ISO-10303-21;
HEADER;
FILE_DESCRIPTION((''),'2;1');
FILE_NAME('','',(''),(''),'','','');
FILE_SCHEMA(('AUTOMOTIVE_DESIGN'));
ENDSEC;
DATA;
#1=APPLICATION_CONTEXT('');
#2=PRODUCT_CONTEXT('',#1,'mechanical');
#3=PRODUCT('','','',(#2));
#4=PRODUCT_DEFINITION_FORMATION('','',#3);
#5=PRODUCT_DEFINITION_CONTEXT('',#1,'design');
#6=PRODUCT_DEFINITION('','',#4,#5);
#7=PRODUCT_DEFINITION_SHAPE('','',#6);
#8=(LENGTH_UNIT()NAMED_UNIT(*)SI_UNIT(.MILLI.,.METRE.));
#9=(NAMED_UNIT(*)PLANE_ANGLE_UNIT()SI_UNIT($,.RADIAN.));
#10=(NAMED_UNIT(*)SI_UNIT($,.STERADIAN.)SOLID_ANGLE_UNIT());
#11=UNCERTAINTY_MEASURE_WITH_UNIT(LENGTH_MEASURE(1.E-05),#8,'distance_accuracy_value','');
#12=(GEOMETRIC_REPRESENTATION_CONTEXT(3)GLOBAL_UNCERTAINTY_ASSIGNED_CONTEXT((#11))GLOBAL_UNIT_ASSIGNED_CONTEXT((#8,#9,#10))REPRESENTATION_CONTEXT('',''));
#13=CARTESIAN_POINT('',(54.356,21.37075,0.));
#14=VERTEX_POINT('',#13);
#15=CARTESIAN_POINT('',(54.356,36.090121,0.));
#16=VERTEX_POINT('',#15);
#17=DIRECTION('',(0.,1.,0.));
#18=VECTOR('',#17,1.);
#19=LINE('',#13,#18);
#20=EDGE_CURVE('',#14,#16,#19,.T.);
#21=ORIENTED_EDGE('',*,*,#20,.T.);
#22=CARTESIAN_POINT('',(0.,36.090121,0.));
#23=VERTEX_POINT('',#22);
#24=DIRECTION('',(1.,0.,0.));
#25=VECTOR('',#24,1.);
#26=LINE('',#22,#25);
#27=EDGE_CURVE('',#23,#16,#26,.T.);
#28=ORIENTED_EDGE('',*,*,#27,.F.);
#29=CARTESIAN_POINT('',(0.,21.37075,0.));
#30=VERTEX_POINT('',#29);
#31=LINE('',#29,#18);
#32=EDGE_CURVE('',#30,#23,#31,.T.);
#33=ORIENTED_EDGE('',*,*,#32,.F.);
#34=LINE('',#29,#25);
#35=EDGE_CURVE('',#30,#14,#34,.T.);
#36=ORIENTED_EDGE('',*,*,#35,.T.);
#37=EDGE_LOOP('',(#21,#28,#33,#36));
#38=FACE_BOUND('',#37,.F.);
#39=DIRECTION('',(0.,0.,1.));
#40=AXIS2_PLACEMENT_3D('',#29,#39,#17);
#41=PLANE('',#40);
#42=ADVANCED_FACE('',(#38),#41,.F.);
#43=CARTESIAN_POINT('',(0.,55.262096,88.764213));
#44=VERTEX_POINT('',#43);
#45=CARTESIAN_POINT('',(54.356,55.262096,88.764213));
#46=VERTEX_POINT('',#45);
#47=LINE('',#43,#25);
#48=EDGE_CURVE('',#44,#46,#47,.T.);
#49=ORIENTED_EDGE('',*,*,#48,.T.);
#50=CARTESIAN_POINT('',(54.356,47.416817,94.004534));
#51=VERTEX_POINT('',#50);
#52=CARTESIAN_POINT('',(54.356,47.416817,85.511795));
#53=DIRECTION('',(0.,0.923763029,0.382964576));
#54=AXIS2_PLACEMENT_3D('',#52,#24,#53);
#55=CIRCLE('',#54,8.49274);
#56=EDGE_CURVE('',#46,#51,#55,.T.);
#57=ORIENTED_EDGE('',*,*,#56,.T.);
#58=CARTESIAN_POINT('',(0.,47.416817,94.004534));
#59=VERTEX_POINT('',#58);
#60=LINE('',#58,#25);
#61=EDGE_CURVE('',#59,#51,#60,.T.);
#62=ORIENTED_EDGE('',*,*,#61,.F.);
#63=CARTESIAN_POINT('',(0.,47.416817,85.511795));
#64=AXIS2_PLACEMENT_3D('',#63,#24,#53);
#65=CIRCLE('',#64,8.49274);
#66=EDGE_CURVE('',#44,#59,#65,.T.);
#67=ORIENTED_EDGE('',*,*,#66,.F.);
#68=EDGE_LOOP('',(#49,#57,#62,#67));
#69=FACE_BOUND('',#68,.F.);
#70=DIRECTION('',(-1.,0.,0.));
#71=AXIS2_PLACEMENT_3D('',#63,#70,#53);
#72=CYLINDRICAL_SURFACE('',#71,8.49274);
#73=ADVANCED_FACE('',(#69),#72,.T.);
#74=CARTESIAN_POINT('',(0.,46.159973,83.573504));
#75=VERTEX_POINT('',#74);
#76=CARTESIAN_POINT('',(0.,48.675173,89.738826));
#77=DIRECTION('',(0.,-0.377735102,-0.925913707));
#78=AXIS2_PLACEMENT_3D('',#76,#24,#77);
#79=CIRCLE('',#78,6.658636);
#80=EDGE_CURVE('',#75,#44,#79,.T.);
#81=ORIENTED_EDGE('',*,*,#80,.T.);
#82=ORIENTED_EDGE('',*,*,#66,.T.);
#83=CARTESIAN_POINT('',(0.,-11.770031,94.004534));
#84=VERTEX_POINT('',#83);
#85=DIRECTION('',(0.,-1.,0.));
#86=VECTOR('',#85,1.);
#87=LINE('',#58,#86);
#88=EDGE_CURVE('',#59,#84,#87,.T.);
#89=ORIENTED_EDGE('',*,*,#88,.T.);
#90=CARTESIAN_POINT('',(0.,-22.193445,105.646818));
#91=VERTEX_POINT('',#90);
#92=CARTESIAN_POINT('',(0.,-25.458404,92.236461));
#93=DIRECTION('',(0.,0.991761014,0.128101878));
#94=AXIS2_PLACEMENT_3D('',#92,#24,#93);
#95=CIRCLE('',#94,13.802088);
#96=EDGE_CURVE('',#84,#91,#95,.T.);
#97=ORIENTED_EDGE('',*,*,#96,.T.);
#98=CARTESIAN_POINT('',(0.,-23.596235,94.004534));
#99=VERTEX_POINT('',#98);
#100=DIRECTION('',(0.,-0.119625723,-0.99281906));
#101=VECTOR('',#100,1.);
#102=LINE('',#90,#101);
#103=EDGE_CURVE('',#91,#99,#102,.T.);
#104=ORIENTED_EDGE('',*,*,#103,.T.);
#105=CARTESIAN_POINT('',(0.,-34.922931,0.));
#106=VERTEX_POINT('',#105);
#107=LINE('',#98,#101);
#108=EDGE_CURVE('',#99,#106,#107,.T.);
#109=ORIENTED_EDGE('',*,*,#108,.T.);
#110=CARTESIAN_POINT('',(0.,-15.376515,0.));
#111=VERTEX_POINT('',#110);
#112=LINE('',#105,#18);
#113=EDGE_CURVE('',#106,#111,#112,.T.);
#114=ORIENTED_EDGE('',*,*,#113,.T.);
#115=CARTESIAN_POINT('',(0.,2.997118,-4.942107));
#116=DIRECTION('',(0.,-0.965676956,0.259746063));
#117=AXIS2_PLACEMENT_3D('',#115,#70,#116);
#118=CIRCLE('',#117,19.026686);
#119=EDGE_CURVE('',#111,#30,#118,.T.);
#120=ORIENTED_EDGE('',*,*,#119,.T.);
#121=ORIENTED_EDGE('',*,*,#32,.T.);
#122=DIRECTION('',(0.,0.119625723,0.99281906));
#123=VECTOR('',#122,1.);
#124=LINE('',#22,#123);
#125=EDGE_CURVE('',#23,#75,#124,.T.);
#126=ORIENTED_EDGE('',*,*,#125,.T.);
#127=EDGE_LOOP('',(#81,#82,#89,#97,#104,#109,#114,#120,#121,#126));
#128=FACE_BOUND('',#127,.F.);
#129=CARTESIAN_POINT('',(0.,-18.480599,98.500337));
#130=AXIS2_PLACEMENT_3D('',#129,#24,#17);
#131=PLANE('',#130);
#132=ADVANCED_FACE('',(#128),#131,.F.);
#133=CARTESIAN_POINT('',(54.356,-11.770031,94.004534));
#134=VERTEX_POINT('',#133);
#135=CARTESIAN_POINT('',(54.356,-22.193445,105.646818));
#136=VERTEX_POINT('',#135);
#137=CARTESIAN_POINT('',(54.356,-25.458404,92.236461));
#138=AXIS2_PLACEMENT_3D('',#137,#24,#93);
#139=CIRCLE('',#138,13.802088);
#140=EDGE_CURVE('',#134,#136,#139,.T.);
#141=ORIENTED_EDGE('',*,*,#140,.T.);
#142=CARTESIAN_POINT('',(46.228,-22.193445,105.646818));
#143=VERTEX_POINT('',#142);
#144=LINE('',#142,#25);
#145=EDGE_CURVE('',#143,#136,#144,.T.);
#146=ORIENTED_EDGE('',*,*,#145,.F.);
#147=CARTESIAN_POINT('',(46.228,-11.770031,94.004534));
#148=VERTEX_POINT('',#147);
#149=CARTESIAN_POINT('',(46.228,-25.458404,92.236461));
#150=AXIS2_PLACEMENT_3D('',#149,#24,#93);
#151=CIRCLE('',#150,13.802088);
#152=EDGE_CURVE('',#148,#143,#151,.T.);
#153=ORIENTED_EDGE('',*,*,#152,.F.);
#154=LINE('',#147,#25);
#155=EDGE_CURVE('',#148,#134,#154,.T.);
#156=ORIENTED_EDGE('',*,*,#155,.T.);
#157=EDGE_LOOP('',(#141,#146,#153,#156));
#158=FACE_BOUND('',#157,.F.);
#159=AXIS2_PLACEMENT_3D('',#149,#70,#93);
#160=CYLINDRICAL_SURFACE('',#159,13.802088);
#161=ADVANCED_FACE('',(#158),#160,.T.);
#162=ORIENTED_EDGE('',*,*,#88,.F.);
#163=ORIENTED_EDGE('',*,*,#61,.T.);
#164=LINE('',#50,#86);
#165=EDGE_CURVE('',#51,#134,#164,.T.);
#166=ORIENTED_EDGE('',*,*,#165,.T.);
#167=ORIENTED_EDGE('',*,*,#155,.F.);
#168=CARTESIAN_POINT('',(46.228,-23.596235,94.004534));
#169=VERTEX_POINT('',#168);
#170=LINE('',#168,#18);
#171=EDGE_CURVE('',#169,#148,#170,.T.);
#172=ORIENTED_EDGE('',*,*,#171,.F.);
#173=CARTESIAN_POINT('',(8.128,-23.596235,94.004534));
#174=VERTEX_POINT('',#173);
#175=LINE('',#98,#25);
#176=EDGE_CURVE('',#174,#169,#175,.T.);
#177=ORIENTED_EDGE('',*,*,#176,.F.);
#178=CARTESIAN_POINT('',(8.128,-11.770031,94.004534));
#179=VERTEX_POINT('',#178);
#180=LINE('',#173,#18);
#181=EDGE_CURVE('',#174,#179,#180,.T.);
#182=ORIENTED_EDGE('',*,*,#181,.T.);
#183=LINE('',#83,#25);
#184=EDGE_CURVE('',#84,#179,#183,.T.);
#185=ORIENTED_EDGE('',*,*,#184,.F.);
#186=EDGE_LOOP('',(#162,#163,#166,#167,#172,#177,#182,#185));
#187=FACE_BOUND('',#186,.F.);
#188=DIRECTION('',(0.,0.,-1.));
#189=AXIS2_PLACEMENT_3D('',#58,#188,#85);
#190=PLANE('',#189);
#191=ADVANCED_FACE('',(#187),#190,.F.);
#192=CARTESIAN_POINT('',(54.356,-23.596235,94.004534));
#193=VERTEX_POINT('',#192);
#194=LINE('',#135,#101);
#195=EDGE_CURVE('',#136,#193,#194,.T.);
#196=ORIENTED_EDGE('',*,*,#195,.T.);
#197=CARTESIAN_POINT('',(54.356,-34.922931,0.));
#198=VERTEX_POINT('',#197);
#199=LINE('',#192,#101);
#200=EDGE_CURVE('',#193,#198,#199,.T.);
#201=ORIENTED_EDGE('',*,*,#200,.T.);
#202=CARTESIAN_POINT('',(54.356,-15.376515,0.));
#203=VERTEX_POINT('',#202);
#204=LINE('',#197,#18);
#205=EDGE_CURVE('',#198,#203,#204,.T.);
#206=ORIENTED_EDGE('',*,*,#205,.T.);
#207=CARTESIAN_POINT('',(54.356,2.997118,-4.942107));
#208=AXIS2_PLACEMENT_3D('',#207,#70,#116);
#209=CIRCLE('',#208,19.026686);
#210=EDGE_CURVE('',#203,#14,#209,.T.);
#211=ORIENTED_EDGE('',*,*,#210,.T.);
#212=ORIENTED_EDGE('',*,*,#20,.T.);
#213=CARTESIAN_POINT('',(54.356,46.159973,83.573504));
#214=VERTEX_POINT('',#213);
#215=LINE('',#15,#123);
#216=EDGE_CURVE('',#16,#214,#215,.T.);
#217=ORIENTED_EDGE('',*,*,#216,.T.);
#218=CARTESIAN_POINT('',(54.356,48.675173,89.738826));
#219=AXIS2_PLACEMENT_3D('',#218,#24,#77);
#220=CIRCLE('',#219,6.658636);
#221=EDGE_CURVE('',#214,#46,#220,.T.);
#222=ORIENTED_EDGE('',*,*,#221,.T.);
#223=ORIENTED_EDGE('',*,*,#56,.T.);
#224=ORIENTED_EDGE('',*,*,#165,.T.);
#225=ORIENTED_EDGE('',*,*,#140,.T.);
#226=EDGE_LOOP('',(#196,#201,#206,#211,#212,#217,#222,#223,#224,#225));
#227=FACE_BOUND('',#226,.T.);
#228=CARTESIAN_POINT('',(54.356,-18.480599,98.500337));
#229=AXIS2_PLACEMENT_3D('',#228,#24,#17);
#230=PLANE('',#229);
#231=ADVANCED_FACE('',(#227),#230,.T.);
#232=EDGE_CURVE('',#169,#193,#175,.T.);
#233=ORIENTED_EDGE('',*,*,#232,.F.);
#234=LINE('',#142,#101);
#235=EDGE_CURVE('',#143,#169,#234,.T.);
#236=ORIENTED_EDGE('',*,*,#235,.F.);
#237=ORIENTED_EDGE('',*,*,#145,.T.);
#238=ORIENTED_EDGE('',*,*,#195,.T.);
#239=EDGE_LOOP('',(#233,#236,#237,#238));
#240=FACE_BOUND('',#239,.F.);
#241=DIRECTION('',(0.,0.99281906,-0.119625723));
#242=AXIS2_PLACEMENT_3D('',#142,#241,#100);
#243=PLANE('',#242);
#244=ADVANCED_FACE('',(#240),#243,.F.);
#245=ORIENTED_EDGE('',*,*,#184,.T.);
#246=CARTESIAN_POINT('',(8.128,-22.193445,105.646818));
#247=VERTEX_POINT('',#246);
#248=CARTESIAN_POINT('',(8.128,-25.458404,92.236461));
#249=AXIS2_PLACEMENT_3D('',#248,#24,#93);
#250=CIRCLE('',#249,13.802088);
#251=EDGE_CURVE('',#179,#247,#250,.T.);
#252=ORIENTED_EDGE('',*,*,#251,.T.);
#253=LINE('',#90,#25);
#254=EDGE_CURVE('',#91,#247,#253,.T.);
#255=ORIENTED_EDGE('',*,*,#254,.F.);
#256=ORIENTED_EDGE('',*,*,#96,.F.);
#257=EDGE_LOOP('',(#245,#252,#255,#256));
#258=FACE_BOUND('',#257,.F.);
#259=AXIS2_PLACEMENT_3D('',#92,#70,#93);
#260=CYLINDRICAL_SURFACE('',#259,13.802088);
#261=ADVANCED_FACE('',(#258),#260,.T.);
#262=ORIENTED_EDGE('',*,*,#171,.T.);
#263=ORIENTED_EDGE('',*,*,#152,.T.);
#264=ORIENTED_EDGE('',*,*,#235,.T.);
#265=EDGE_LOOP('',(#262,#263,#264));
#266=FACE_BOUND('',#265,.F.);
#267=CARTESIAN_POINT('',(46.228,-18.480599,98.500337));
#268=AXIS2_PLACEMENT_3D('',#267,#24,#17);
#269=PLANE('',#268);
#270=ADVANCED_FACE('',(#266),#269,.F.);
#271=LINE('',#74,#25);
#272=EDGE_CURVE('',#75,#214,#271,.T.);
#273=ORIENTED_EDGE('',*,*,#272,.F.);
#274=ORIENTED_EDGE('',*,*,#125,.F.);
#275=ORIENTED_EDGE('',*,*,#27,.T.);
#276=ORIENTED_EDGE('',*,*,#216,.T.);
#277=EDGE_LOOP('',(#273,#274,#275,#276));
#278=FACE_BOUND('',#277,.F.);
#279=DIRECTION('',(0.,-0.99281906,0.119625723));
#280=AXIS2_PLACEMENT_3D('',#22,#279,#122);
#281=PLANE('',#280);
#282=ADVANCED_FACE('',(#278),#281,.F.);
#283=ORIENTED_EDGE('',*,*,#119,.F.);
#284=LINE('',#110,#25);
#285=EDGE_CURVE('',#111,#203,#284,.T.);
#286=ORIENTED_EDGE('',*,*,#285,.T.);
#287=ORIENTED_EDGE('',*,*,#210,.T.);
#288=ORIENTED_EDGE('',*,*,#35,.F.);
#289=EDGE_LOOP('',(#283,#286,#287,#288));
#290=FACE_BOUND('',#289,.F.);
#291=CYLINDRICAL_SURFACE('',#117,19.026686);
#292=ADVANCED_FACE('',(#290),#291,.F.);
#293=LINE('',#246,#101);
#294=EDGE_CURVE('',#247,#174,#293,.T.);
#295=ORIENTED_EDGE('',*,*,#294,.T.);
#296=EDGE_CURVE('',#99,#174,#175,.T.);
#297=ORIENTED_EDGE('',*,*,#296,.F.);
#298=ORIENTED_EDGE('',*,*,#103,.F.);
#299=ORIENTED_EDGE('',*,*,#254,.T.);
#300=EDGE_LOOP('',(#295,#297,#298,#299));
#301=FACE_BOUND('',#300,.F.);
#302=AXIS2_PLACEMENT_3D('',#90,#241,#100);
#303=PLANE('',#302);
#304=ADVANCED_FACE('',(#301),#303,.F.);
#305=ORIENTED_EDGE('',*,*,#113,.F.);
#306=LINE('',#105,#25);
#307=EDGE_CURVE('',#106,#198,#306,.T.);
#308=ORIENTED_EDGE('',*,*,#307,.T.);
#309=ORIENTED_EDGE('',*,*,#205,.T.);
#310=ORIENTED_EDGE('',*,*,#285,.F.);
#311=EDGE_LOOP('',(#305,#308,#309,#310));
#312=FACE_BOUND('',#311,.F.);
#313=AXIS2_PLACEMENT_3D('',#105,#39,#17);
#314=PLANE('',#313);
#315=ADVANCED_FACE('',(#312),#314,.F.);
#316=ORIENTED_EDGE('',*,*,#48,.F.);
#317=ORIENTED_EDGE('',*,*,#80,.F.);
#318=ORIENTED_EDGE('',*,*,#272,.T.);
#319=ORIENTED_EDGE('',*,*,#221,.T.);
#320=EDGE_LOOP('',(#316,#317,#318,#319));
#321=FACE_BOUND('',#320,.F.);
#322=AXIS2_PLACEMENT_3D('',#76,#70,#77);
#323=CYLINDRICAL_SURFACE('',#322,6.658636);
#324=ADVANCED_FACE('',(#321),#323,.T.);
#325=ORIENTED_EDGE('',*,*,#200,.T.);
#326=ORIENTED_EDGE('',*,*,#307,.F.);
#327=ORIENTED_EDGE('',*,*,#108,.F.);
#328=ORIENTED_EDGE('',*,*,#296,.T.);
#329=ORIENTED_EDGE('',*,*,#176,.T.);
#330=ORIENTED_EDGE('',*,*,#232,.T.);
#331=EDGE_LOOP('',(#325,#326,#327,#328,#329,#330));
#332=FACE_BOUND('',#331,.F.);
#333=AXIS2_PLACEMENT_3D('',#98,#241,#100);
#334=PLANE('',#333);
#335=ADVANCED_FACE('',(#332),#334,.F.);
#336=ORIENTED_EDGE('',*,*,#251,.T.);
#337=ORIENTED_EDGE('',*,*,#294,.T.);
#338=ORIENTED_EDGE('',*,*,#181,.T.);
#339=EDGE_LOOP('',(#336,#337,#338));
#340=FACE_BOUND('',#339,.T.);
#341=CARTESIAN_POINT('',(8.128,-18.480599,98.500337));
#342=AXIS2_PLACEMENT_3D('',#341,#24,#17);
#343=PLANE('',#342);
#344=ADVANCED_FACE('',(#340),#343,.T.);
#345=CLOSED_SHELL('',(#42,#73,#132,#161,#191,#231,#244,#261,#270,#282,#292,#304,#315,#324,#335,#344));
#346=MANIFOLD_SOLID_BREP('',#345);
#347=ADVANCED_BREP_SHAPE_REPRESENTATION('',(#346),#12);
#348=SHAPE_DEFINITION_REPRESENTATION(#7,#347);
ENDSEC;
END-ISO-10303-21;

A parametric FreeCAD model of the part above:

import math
import FreeCAD as App
import Part
import Sketcher

V = App.Vector
Q = App.Units.Quantity

doc = App.newDocument("Part")
body = doc.addObject("PartDesign::Body", "Body")

# Sketch on YZ plane
sketch1 = body.newObject("Sketcher::SketchObject", "Sketch")
sketch1.AttachmentSupport = (doc.getObject("YZ_Plane"), [""])
sketch1.MapMode = "FlatFace"
sketch1.addGeometry(Part.ArcOfCircle(Part.Circle(V(3, -5, 0), V(0, 0, 1), 19), math.radians(15), math.radians(165)), False)
sketch1.addGeometry(Part.LineSegment(V(21, 0, 0), V(36, 0, 0)), False)
sketch1.addGeometry(Part.LineSegment(V(36, 0, 0), V(46, 84, 0)), False)
sketch1.addGeometry(Part.ArcOfCircle(Part.Circle(V(49, 90, 0), V(0, 0, 1), 7), math.radians(-112), math.radians(-8)), False)
sketch1.addGeometry(Part.ArcOfCircle(Part.Circle(V(47, 86, 0), V(0, 0, 1), 8), math.radians(23), math.radians(90)), False)
sketch1.addGeometry(Part.LineSegment(V(47, 94, 0), V(-24, 94, 0)), False)
sketch1.addGeometry(Part.LineSegment(V(-24, 94, 0), V(-35, 0, 0)), False)
sketch1.addGeometry(Part.LineSegment(V(-35, 0, 0), V(-15, 0, 0)), False)
sketch1.addConstraint(Sketcher.Constraint("Coincident", 0, 1, 1, 1))
sketch1.addConstraint(Sketcher.Constraint("Coincident", 1, 2, 2, 1))
sketch1.addConstraint(Sketcher.Constraint("Coincident", 2, 2, 3, 1))
sketch1.addConstraint(Sketcher.Constraint("Coincident", 3, 2, 4, 1))
sketch1.addConstraint(Sketcher.Constraint("Tangent", 4, 2, 5, 1))
sketch1.addConstraint(Sketcher.Constraint("Coincident", 5, 2, 6, 1))
sketch1.addConstraint(Sketcher.Constraint("Coincident", 6, 2, 7, 1))
sketch1.addConstraint(Sketcher.Constraint("Coincident", 7, 2, 0, 2))
sketch1.addConstraint(Sketcher.Constraint("Horizontal", 1))
sketch1.addConstraint(Sketcher.Constraint("Horizontal", 5))
sketch1.addConstraint(Sketcher.Constraint("Horizontal", 7))
sketch1.addConstraint(Sketcher.Constraint("PointOnObject", 0, 1, -1))
sketch1.addConstraint(Sketcher.Constraint("PointOnObject", 6, 2, -1))
sketch1.addConstraint(Sketcher.Constraint("Parallel", 2, 6))
sketch1.addConstraint(Sketcher.Constraint("Radius", 4, 8.49274))
sketch1.addConstraint(Sketcher.Constraint("Radius", 0, 19.026686))
sketch1.addConstraint(Sketcher.Constraint("Radius", 3, 6.658636))
sketch1.addConstraint(Sketcher.Constraint("DistanceX", 1, 1, 1, 2, 14.719371))
sketch1.addConstraint(Sketcher.Constraint("DistanceX", 0, 3, 4, 3, 44.4197))
sketch1.addConstraint(Sketcher.Constraint("DistanceY", 0, 3, 4, 3, 90.453901))
sketch1.addConstraint(Sketcher.Constraint("DistanceX", 2, 2, 3, 3, 2.5152))
sketch1.addConstraint(Sketcher.Constraint("Distance", 2, 84.177981))
sketch1.addConstraint(Sketcher.Constraint("DistanceX", 5, 2, 5, 1, 71.013052))
sketch1.addConstraint(Sketcher.Constraint("DistanceX", 7, 1, 7, 2, 19.546417))
sketch1.addConstraint(Sketcher.Constraint("DistanceX", -1, 1, 0, 1, 21.37075))
sketch1.addConstraint(Sketcher.Constraint("DistanceX", 6, 2, -1, 1, 34.922931))
pad1 = body.newObject("PartDesign::Pad", "Pad")
pad1.Profile = sketch1
pad1.Length = Q("2.14 in")

# Sketch on YZ plane
sketch2 = body.newObject("Sketcher::SketchObject", "Sketch001")
sketch2.AttachmentSupport = (doc.getObject("YZ_Plane"), [""])
sketch2.MapMode = "FlatFace"
sketch2.addGeometry(Part.LineSegment(V(-22, 106, 0), V(-24, 94, 0)), False)
sketch2.addGeometry(Part.LineSegment(V(-24, 94, 0), V(-12, 94, 0)), False)
sketch2.addGeometry(Part.ArcOfCircle(Part.Circle(V(-25, 92, 0), V(0, 0, 1), 14), math.radians(7), math.radians(76)), False)
sketch2.addConstraint(Sketcher.Constraint("Coincident", 0, 2, 1, 1))
sketch2.addConstraint(Sketcher.Constraint("Coincident", 1, 2, 2, 1))
sketch2.addConstraint(Sketcher.Constraint("Coincident", 2, 2, 0, 1))
sketch2.addConstraint(Sketcher.Constraint("Horizontal", 1))
sketch2.addConstraint(Sketcher.Constraint("Radius", 2, 13.802088))
sketch2.addConstraint(Sketcher.Constraint("Distance", 0, 11.726491))
sketch2.addConstraint(Sketcher.Constraint("DistanceX", 1, 1, 1, 2, 11.826203))
sketch2.addConstraint(Sketcher.Constraint("DistanceY", -1, 1, 2, 3, 92.236461))
sketch2.addConstraint(Sketcher.Constraint("DistanceX", 1, 2, -1, 1, 11.770031))
sketch2.addConstraint(Sketcher.Constraint("DistanceX", 2, 3, 0, 2, 1.86217))
pad2 = body.newObject("PartDesign::Pad", "Pad001")
pad2.Profile = sketch2
pad2.Length = Q("0.32 in")

# Sketch on YZ plane
sketch3 = body.newObject("Sketcher::SketchObject", "Sketch002")
sketch3.AttachmentSupport = (doc.getObject("YZ_Plane"), [""])
sketch3.MapMode = "FlatFace"
sketch3.AttachmentOffset = App.Placement(V(0, 0, 1.82 * 25.4), App.Rotation())
sketch3.addGeometry(Part.ArcOfCircle(Part.Circle(V(-25, 92, 0), V(0, 0, 1), 14), math.radians(7), math.radians(76)), False)
sketch3.addGeometry(Part.LineSegment(V(-22, 106, 0), V(-24, 94, 0)), False)
sketch3.addGeometry(Part.LineSegment(V(-24, 94, 0), V(-12, 94, 0)), False)
sketch3.addConstraint(Sketcher.Constraint("Coincident", 0, 2, 1, 1))
sketch3.addConstraint(Sketcher.Constraint("Coincident", 1, 2, 2, 1))
sketch3.addConstraint(Sketcher.Constraint("Coincident", 2, 2, 0, 1))
sketch3.addConstraint(Sketcher.Constraint("Horizontal", 2))
sketch3.addConstraint(Sketcher.Constraint("Radius", 0, 13.802088))
sketch3.addConstraint(Sketcher.Constraint("Distance", 1, 11.726491))
sketch3.addConstraint(Sketcher.Constraint("DistanceX", 2, 1, 2, 2, 11.826203))
sketch3.addConstraint(Sketcher.Constraint("DistanceY", -1, 1, 0, 3, 92.236461))
sketch3.addConstraint(Sketcher.Constraint("DistanceX", 2, 2, -1, 1, 11.770031))
sketch3.addConstraint(Sketcher.Constraint("DistanceX", 0, 3, 0, 2, 3.264959))
pad3 = body.newObject("PartDesign::Pad", "Pad002")
pad3.Profile = sketch3
pad3.Length = Q("0.32 in")

doc.recompute()
